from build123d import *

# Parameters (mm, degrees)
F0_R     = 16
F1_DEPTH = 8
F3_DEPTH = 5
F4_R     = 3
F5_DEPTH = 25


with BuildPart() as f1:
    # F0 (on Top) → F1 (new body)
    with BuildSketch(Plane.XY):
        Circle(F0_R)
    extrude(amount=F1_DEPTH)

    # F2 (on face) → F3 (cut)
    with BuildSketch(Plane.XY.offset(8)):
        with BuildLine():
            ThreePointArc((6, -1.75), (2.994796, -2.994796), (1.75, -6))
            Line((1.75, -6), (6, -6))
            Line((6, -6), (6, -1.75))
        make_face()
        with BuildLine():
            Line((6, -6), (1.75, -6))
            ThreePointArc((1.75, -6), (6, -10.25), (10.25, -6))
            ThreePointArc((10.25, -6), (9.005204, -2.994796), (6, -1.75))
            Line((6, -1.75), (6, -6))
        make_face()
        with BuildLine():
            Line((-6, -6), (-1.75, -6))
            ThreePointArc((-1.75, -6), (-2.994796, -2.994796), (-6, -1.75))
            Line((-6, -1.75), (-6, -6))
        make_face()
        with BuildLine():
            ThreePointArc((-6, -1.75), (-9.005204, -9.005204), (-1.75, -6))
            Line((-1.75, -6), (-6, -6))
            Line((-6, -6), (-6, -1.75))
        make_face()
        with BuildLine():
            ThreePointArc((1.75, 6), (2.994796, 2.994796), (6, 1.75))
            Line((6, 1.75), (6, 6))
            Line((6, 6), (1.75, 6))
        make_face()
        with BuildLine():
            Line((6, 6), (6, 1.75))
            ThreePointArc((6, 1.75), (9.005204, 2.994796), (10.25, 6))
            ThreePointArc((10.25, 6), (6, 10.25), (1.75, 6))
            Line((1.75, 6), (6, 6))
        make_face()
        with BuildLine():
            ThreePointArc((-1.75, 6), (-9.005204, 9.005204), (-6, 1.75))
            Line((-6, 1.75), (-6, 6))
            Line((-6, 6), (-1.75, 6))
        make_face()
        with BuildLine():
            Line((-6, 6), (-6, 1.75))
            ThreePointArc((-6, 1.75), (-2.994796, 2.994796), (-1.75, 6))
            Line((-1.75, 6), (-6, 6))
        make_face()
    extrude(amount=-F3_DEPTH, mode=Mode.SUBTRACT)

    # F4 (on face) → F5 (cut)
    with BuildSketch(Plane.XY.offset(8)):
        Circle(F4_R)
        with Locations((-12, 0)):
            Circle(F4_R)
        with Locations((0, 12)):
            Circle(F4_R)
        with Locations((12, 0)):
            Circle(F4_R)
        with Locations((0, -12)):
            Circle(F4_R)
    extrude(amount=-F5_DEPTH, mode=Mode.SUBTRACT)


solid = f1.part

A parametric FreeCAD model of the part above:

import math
import FreeCAD as App
import Part
import Sketcher

doc = App.newDocument("Part")
body = doc.addObject("PartDesign::Body", "Body")

# Sketch on XY plane
sketch1 = doc.addObject("Sketcher::SketchObject", "Sketch")
body.addObject(sketch1)
sketch1.AttachmentSupport = (doc.XY_Plane, [""])
sketch1.MapMode = "FlatFace"
sketch1.addGeometry(Part.Circle(App.Vector(0, 0, 0), App.Vector(0, 0, 1), 16), False)
sketch1.addConstraint(Sketcher.Constraint("Coincident", 0, 3, -1, 1))
sketch1.addConstraint(Sketcher.Constraint("Diameter", 0, 32.0))
pad1 = doc.addObject("PartDesign::Pad", "Pad")
body.addObject(pad1)
pad1.Profile = sketch1
pad1.Length = 8

# Sketch on XY plane
sketch2 = doc.addObject("Sketcher::SketchObject", "Sketch001")
body.addObject(sketch2)
sketch2.AttachmentSupport = (doc.XY_Plane, [""])
sketch2.MapMode = "FlatFace"
sketch2.AttachmentOffset = App.Placement(App.Vector(0, 0, 8), App.Rotation())
sketch2.addGeometry(Part.ArcOfCircle(Part.Circle(App.Vector(5.999999, -5.999999, 0), App.Vector(0, 0, 1), 4.249999), math.radians(89.999992), math.radians(180.000008)), False)
sketch2.addGeometry(Part.ArcOfCircle(Part.Circle(App.Vector(6, -6, 0), App.Vector(0, 0, 1), 4.25), math.radians(180), math.radians(360)), False)
sketch2.addGeometry(Part.ArcOfCircle(Part.Circle(App.Vector(6.000001, -5.999999, 0), App.Vector(0, 0, 1), 4.249999), math.radians(-0.000008), math.radians(90.000008)), False)
sketch2.addGeometry(Part.ArcOfCircle(Part.Circle(App.Vector(-5.999999, -5.999999, 0), App.Vector(0, 0, 1), 4.249999), math.radians(-0.000008), math.radians(90.000008)), False)
sketch2.addGeometry(Part.ArcOfCircle(Part.Circle(App.Vector(-6, -6, 0), App.Vector(0, 0, 1), 4.25), math.radians(89.999999), math.radians(360.000001)), False)
sketch2.addGeometry(Part.ArcOfCircle(Part.Circle(App.Vector(5.999999, 5.999999, 0), App.Vector(0, 0, 1), 4.249999), math.radians(179.999992), math.radians(270.000008)), False)
sketch2.addGeometry(Part.ArcOfCircle(Part.Circle(App.Vector(6.000001, 5.999999, 0), App.Vector(0, 0, 1), 4.249999), math.radians(-90.000008), math.radians(0.000008)), False)
sketch2.addGeometry(Part.ArcOfCircle(Part.Circle(App.Vector(6, 6, 0), App.Vector(0, 0, 1), 4.25), math.radians(0), math.radians(180)), False)
sketch2.addGeometry(Part.ArcOfCircle(Part.Circle(App.Vector(-6, 6, 0), App.Vector(0, 0, 1), 4.25), math.radians(-0.000001), math.radians(270.000001)), False)
sketch2.addGeometry(Part.ArcOfCircle(Part.Circle(App.Vector(-5.999999, 5.999999, 0), App.Vector(0, 0, 1), 4.249999), math.radians(-90.000008), math.radians(0.000008)), False)
sketch2.addConstraint(Sketcher.Constraint("Tangent", 0, 2, 1, 1))
sketch2.addConstraint(Sketcher.Constraint("Tangent", 1, 2, 2, 1))
sketch2.addConstraint(Sketcher.Constraint("Tangent", 2, 2, 0, 1))
sketch2.addConstraint(Sketcher.Constraint("Tangent", 3, 1, 4, 2))
sketch2.addConstraint(Sketcher.Constraint("Coincident", 4, 1, 3, 2))
sketch2.addConstraint(Sketcher.Constraint("Tangent", 5, 2, 6, 1))
sketch2.addConstraint(Sketcher.Constraint("Tangent", 6, 2, 7, 1))
sketch2.addConstraint(Sketcher.Constraint("Tangent", 7, 2, 5, 1))
sketch2.addConstraint(Sketcher.Constraint("Tangent", 8, 1, 9, 2))
sketch2.addConstraint(Sketcher.Constraint("Coincident", 9, 1, 8, 2))
sketch2.addConstraint(Sketcher.Constraint("Equal", 2, 3))
sketch2.addConstraint(Sketcher.Constraint("Equal", 4, 5))
sketch2.addConstraint(Sketcher.Constraint("Equal", 7, 8))
sketch2.addConstraint(Sketcher.Constraint("Symmetric", 3, 3, 5, 3, -1, 1))
sketch2.addConstraint(Sketcher.Constraint("Symmetric", 0, 3, 8, 3, -1, 1))
sketch2.addConstraint(Sketcher.Constraint("Symmetric", 0, 3, 3, 3, -2))
sketch2.addConstraint(Sketcher.Constraint("Horizontal", 4, 3, 0, 2))
sketch2.addConstraint(Sketcher.Constraint("Horizontal", 0, 2, 1, 2))
sketch2.addConstraint(Sketcher.Constraint("Horizontal", 1, 2, 3, 1))
sketch2.addConstraint(Sketcher.Constraint("Horizontal", 9, 3, 6, 2))
sketch2.addConstraint(Sketcher.Constraint("Horizontal", 6, 2, 7, 2))
sketch2.addConstraint(Sketcher.Constraint("Horizontal", 7, 2, 8, 1))
sketch2.addConstraint(Sketcher.Constraint("Vertical", 7, 3, 2, 2))
sketch2.addConstraint(Sketcher.Constraint("Vertical", 9, 3, 4, 1))
sketch2.addConstraint(Sketcher.Constraint("Vertical", 2, 2, 5, 2))
sketch2.addConstraint(Sketcher.Constraint("Vertical", 4, 1, 9, 1))
sketch2.addConstraint(Sketcher.Constraint("Radius", 0, 4.249999))
sketch2.addConstraint(Sketcher.Constraint("DistanceX", -1, 1, 0, 3, 5.999999))
sketch2.addConstraint(Sketcher.Constraint("DistanceY", 0, 3, -1, 1, 5.999999))
pocket1 = doc.addObject("PartDesign::Pocket", "Pocket")
body.addObject(pocket1)
pocket1.Profile = sketch2
pocket1.Length = 5

# Sketch on XY plane
sketch3 = doc.addObject("Sketcher::SketchObject", "Sketch002")
body.addObject(sketch3)
sketch3.AttachmentSupport = (doc.XY_Plane, [""])
sketch3.MapMode = "FlatFace"
sketch3.AttachmentOffset = App.Placement(App.Vector(0, 0, 8), App.Rotation())
sketch3.addGeometry(Part.Circle(App.Vector(0, 0, 0), App.Vector(0, 0, 1), 3), False)
sketch3.addGeometry(Part.Circle(App.Vector(-12, 0, 0), App.Vector(0, 0, 1), 3), False)
sketch3.addGeometry(Part.Circle(App.Vector(0, 12, 0), App.Vector(0, 0, 1), 3), False)
sketch3.addGeometry(Part.Circle(App.Vector(12, 0, 0), App.Vector(0, 0, 1), 3), False)
sketch3.addGeometry(Part.Circle(App.Vector(0, -12, 0), App.Vector(0, 0, 1), 3), False)
sketch3.addConstraint(Sketcher.Constraint("Coincident", 0, 3, -1, 1))
sketch3.addConstraint(Sketcher.Constraint("Equal", 0, 1))
sketch3.addConstraint(Sketcher.Constraint("Equal", 1, 2))
sketch3.addConstraint(Sketcher.Constraint("Equal", 2, 3))
sketch3.addConstraint(Sketcher.Constraint("Equal", 3, 4))
sketch3.addConstraint(Sketcher.Constraint("Symmetric", 1, 3, 3, 3, -1, 1))
sketch3.addConstraint(Sketcher.Constraint("Symmetric", 2, 3, 4, 3, -1, 1))
sketch3.addConstraint(Sketcher.Constraint("PointOnObject", 1, 3, -1))
sketch3.addConstraint(Sketcher.Constraint("PointOnObject", 2, 3, -2))
sketch3.addConstraint(Sketcher.Constraint("Diameter", 0, 6.0))
sketch3.addConstraint(Sketcher.Constraint("DistanceX", 1, 3, -1, 1, 12.0))
sketch3.addConstraint(Sketcher.Constraint("DistanceY", -1, 1, 2, 3, 12.0))
pocket2 = doc.addObject("PartDesign::Pocket", "Pocket001")
body.addObject(pocket2)
pocket2.Profile = sketch3
pocket2.Length = 25

doc.recompute()
